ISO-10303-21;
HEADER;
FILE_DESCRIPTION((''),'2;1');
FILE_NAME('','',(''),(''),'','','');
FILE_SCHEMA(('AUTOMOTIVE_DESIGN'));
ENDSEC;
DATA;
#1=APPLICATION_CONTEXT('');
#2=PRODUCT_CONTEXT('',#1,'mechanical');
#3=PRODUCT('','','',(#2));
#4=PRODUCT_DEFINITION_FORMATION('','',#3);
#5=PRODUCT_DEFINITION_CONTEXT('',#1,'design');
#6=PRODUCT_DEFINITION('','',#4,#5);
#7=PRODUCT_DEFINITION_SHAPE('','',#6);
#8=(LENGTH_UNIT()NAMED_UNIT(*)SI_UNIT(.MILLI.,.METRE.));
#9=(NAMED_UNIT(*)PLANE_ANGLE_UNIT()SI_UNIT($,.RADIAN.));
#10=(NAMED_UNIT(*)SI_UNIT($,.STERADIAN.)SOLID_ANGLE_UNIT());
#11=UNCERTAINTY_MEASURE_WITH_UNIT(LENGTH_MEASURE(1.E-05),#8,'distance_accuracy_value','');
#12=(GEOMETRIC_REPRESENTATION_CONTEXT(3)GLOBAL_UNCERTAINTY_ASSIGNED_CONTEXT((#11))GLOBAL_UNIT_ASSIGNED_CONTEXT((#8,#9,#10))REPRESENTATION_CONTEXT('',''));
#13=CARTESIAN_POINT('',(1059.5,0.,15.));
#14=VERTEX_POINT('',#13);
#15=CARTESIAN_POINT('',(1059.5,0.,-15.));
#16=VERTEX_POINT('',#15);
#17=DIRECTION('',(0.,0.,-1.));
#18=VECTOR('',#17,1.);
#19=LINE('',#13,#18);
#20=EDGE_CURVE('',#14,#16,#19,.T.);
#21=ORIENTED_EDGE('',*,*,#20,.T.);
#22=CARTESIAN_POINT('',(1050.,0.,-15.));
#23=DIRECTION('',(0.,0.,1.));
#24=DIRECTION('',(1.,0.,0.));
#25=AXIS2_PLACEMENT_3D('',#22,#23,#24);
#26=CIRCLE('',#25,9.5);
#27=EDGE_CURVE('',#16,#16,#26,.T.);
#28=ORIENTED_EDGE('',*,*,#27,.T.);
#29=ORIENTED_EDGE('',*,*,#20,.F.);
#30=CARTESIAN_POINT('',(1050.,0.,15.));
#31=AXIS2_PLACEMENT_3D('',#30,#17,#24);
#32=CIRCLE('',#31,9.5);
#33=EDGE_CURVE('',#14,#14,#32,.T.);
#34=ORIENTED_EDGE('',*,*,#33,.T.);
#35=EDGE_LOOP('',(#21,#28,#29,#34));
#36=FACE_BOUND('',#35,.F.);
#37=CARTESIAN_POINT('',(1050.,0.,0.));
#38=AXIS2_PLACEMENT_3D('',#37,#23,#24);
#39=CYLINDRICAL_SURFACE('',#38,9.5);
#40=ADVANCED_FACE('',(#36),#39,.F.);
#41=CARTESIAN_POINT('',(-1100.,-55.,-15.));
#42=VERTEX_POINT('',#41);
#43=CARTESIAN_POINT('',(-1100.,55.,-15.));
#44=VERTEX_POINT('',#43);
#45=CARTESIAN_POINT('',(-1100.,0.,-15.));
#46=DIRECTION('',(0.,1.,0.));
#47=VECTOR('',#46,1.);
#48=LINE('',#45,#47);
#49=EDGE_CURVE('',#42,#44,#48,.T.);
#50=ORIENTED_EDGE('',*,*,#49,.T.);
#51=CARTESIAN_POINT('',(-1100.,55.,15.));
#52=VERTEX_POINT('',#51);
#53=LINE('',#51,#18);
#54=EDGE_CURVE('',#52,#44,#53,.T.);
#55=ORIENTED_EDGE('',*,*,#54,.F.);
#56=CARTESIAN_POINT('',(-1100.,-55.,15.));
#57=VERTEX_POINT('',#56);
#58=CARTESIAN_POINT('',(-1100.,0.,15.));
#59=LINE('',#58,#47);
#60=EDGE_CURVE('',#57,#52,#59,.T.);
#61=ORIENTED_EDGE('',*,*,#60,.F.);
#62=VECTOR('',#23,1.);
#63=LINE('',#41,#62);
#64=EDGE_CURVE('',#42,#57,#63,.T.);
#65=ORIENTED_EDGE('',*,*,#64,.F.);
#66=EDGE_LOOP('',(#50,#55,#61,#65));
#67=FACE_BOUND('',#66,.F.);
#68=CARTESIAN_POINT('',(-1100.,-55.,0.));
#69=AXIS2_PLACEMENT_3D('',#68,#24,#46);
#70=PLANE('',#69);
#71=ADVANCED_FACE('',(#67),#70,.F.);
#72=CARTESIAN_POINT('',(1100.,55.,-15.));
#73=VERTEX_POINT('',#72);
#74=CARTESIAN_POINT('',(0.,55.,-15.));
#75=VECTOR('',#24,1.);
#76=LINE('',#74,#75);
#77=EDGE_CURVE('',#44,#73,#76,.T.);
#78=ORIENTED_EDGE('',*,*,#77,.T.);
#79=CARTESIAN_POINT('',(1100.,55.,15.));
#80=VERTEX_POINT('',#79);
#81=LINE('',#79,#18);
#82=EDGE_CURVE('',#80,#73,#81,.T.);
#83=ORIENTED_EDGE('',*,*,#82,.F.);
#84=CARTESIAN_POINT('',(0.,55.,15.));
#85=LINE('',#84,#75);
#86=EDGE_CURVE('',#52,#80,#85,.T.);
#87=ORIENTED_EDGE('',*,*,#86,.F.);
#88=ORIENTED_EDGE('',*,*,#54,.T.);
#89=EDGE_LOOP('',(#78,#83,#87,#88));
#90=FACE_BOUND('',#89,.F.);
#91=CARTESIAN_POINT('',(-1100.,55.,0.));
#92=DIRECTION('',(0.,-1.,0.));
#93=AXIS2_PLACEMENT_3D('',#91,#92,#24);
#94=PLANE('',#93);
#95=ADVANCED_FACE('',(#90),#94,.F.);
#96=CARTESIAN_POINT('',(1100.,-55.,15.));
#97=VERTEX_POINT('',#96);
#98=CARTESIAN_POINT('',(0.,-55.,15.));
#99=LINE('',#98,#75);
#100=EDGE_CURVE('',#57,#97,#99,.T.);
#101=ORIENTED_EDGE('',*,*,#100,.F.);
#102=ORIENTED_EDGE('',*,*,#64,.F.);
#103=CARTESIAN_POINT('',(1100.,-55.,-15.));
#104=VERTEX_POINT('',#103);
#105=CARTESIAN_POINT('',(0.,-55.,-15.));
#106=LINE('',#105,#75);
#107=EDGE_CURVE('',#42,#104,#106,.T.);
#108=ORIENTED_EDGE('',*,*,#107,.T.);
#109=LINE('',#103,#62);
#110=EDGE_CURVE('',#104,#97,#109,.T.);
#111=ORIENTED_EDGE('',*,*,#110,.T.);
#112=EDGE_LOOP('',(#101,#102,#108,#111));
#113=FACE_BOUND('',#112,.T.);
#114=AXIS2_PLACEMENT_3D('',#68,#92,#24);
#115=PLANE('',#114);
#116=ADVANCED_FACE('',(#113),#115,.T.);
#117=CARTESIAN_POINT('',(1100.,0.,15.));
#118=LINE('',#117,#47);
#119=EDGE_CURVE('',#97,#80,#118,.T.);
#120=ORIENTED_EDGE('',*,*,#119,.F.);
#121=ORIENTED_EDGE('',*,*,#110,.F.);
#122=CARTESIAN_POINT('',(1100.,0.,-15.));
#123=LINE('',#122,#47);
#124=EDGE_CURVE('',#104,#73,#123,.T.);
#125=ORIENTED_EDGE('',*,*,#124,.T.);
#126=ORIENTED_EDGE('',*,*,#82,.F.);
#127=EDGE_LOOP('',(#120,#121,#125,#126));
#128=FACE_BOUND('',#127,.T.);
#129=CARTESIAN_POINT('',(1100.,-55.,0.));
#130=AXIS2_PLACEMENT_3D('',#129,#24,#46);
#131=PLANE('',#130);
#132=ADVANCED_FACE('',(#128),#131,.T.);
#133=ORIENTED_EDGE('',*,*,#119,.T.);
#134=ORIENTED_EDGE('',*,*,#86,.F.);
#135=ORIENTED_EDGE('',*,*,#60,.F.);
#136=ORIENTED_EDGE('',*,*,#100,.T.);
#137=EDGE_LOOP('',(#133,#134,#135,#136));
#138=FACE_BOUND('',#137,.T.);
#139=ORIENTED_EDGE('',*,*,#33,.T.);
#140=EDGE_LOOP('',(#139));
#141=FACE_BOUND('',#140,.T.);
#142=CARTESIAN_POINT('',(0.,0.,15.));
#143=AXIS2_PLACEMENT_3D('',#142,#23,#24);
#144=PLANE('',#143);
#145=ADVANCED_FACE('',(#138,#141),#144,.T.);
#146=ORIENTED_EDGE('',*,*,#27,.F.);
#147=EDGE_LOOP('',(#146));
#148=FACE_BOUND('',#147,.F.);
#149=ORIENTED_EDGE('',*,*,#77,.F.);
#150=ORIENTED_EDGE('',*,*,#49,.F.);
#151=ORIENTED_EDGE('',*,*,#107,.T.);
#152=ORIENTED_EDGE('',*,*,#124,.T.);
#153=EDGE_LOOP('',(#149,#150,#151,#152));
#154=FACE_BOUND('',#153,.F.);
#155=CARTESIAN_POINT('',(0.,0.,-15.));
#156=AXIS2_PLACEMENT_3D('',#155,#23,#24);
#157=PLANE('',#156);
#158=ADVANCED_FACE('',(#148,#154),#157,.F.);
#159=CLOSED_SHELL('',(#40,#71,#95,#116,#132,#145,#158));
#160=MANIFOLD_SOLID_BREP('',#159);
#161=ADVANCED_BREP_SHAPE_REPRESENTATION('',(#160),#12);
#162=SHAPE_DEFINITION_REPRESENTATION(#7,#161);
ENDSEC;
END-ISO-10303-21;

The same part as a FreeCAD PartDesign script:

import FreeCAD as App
import Part
import Sketcher

V = App.Vector
Q = App.Units.Quantity


def add_polygon(sketch, points):
    """Adds a closed chain of lines whose ends are joined by coincident constraints."""
    first, n = sketch.GeometryCount, len(points)
    for a, b in zip(points, points[1:] + points[:1]):
        sketch.addGeometry(Part.LineSegment(App.Vector(*a, 0), App.Vector(*b, 0)), False)
    for i in range(n):
        sketch.addConstraint(Sketcher.Constraint("Coincident", first + i, 2, first + (i + 1) % n, 1))

doc = App.newDocument("Part")
body = doc.addObject("PartDesign::Body", "Body")

# Sketch on XY plane
sketch1 = body.newObject("Sketcher::SketchObject", "Sketch")
sketch1.AttachmentSupport = (doc.getObject("XY_Plane"), [""])
sketch1.MapMode = "FlatFace"
add_polygon(sketch1, [(-1100, 55), (-1100, -55), (1100, -55), (1100, 55)])  # lines 0-3
sketch1.addConstraint(Sketcher.Constraint("Vertical", 0))
sketch1.addConstraint(Sketcher.Constraint("Horizontal", 1))
sketch1.addConstraint(Sketcher.Constraint("Vertical", 2))
sketch1.addConstraint(Sketcher.Constraint("Horizontal", 3))
sketch1.addConstraint(Sketcher.Constraint("Symmetric", 0, 2, 2, 2, -1, 1))
sketch1.addConstraint(Sketcher.Constraint("DistanceX", 1, 1, 1, 2, Q("2200 mm")))
sketch1.addConstraint(Sketcher.Constraint("DistanceY", 0, 2, 0, 1, Q("110 mm")))
pad1 = body.newObject("PartDesign::Pad", "Pad")
pad1.Profile = sketch1
pad1.Length = 30
pad1.Midplane = True

# Sketch on XY plane
sketch2 = body.newObject("Sketcher::SketchObject", "Sketch001")
sketch2.AttachmentSupport = (doc.getObject("XY_Plane"), [""])
sketch2.MapMode = "FlatFace"
sketch2.addGeometry(Part.Circle(V(1050, 0, 0), V(0, 0, 1), 10), False)
sketch2.addConstraint(Sketcher.Constraint("PointOnObject", 0, 3, -1))
sketch2.addConstraint(Sketcher.Constraint("Diameter", 0, Q("19 mm")))
sketch2.addConstraint(Sketcher.Constraint("DistanceX", -1, 1, 0, 3, Q("1050 mm")))
pocket1 = body.newObject("PartDesign::Pocket", "Pocket")
pocket1.Profile = sketch2
pocket1.Type = "ThroughAll"
pocket1.Midplane = True

doc.recompute()
